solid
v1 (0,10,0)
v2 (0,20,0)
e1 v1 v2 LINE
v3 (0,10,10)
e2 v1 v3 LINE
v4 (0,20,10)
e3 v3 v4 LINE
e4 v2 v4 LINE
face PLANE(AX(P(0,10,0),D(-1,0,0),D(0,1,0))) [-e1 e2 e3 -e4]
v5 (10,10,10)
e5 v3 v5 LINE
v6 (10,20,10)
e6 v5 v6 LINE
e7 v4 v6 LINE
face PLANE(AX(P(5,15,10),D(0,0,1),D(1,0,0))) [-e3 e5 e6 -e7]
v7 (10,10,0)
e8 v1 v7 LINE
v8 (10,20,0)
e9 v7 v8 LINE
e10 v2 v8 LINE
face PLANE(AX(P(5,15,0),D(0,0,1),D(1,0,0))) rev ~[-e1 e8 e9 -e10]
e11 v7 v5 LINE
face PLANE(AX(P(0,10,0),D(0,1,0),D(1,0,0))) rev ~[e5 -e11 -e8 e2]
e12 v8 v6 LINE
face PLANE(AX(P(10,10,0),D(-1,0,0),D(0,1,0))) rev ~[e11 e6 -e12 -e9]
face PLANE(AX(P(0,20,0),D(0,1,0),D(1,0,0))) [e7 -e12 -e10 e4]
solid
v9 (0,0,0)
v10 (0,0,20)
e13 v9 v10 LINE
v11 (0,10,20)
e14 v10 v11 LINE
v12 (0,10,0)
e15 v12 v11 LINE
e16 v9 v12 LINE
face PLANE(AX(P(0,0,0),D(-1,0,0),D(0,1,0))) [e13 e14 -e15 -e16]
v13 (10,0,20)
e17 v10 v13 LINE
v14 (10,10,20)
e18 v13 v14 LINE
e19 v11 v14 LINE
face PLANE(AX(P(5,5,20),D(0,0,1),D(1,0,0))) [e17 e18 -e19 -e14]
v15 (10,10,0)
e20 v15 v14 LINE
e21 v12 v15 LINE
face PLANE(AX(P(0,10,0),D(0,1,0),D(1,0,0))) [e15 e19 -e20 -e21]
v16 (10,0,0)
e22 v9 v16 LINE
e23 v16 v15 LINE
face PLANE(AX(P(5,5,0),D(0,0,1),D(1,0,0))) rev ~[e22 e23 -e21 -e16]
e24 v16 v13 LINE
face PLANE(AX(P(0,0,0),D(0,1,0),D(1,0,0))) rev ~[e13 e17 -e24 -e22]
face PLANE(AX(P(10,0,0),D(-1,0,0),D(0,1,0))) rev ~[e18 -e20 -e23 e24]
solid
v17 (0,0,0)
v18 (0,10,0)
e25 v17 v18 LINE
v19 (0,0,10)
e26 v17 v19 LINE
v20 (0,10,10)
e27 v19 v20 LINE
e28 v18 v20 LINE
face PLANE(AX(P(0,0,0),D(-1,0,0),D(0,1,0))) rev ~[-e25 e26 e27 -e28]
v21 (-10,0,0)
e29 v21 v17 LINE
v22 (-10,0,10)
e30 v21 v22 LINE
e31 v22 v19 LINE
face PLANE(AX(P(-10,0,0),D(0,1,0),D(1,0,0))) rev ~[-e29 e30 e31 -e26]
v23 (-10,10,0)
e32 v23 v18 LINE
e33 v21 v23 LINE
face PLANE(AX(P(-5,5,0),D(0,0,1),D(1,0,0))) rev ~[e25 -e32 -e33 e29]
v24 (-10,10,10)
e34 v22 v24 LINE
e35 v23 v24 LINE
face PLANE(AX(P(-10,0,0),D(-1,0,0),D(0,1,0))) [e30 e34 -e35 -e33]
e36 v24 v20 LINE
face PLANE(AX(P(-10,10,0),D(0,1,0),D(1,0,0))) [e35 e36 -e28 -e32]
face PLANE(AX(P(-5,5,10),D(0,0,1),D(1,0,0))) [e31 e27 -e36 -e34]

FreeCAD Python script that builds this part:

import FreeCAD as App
import Part
import Sketcher
from FreeCAD import Vector
Q = App.Units.Quantity

doc = App.newDocument("Part")
body = doc.addObject("PartDesign::Body", "Body")

sketch1 = body.newObject("Sketcher::SketchObject", "Sketch")
sketch1.AttachmentSupport = (doc.getObject("XY_Plane"), [""])
sketch1.MapMode = "FlatFace"
sketch1.addGeometry([
    Part.LineSegment(Vector(-10, 10, 0), Vector(-10, 0, 0)),
    Part.LineSegment(Vector(-10, 0, 0), Vector(0, 0, 0)),
    Part.LineSegment(Vector(0, 0, 0), Vector(0, 10, 0)),
    Part.LineSegment(Vector(0, 10, 0), Vector(-10, 10, 0)),
], False)
sketch1.addConstraint([
    Sketcher.Constraint("Coincident", 0, 2, 1, 1),
    Sketcher.Constraint("Coincident", 1, 2, 2, 1),
    Sketcher.Constraint("Coincident", 2, 2, 3, 1),
    Sketcher.Constraint("Coincident", 3, 2, 0, 1),
    Sketcher.Constraint("Vertical", 0),
    Sketcher.Constraint("Horizontal", 1),
    Sketcher.Constraint("Vertical", 2),
    Sketcher.Constraint("Horizontal", 3),
    Sketcher.Constraint("Coincident", 1, 2, -1, 1),
    Sketcher.Constraint("Equal", 3, 0),
    Sketcher.Constraint("DistanceX", 1, 1, 1, 2, Q("10 mm")),
])
pad1 = body.newObject("PartDesign::Pad", "Pad")
pad1.Profile = sketch1
pad1.Length = 10
body2 = doc.addObject("PartDesign::Body", "Body001")

sketch2 = body2.newObject("Sketcher::SketchObject", "Sketch001")
sketch2.AttachmentSupport = (doc.getObject("XY_Plane001"), [""])
sketch2.MapMode = "FlatFace"
sketch2.addGeometry([
    Part.LineSegment(Vector(0, 20, 0), Vector(0, 10, 0)),
    Part.LineSegment(Vector(0, 10, 0), Vector(10, 10, 0)),
    Part.LineSegment(Vector(10, 10, 0), Vector(10, 20, 0)),
    Part.LineSegment(Vector(10, 20, 0), Vector(0, 20, 0)),
], False)
sketch2.addConstraint([
    Sketcher.Constraint("Coincident", 0, 2, 1, 1),
    Sketcher.Constraint("Coincident", 1, 2, 2, 1),
    Sketcher.Constraint("Coincident", 2, 2, 3, 1),
    Sketcher.Constraint("Coincident", 3, 2, 0, 1),
    Sketcher.Constraint("Vertical", 0),
    Sketcher.Constraint("Horizontal", 1),
    Sketcher.Constraint("Vertical", 2),
    Sketcher.Constraint("Horizontal", 3),
    Sketcher.Constraint("PointOnObject", 0, 2, -2),
    Sketcher.Constraint("Equal", 3, 0),
    Sketcher.Constraint("DistanceX", 1, 1, 1, 2, Q("10 mm")),
    Sketcher.Constraint("DistanceY", -1, 1, 0, 2, Q("10 mm")),
])
pad2 = body2.newObject("PartDesign::Pad", "Pad001")
pad2.Profile = sketch2
pad2.Length = 10
body3 = doc.addObject("PartDesign::Body", "Body002")

sketch3 = body3.newObject("Sketcher::SketchObject", "Sketch002")
sketch3.AttachmentSupport = (doc.getObject("XY_Plane002"), [""])
sketch3.MapMode = "FlatFace"
sketch3.addGeometry([
    Part.LineSegment(Vector(0, 10, 0), Vector(0, 0, 0)),
    Part.LineSegment(Vector(0, 0, 0), Vector(10, 0, 0)),
    Part.LineSegment(Vector(10, 0, 0), Vector(10, 10, 0)),
    Part.LineSegment(Vector(10, 10, 0), Vector(0, 10, 0)),
], False)
sketch3.addConstraint([
    Sketcher.Constraint("Coincident", 0, 2, 1, 1),
    Sketcher.Constraint("Coincident", 1, 2, 2, 1),
    Sketcher.Constraint("Coincident", 2, 2, 3, 1),
    Sketcher.Constraint("Coincident", 3, 2, 0, 1),
    Sketcher.Constraint("Vertical", 0),
    Sketcher.Constraint("Horizontal", 1),
    Sketcher.Constraint("Vertical", 2),
    Sketcher.Constraint("Horizontal", 3),
    Sketcher.Constraint("Coincident", 0, 2, -1, 1),
    Sketcher.Constraint("Equal", 3, 0),
    Sketcher.Constraint("DistanceX", 1, 1, 1, 2, Q("10 mm")),
])
pad3 = body3.newObject("PartDesign::Pad", "Pad002")
pad3.Profile = sketch3
pad3.Length = 20

doc.recompute()
